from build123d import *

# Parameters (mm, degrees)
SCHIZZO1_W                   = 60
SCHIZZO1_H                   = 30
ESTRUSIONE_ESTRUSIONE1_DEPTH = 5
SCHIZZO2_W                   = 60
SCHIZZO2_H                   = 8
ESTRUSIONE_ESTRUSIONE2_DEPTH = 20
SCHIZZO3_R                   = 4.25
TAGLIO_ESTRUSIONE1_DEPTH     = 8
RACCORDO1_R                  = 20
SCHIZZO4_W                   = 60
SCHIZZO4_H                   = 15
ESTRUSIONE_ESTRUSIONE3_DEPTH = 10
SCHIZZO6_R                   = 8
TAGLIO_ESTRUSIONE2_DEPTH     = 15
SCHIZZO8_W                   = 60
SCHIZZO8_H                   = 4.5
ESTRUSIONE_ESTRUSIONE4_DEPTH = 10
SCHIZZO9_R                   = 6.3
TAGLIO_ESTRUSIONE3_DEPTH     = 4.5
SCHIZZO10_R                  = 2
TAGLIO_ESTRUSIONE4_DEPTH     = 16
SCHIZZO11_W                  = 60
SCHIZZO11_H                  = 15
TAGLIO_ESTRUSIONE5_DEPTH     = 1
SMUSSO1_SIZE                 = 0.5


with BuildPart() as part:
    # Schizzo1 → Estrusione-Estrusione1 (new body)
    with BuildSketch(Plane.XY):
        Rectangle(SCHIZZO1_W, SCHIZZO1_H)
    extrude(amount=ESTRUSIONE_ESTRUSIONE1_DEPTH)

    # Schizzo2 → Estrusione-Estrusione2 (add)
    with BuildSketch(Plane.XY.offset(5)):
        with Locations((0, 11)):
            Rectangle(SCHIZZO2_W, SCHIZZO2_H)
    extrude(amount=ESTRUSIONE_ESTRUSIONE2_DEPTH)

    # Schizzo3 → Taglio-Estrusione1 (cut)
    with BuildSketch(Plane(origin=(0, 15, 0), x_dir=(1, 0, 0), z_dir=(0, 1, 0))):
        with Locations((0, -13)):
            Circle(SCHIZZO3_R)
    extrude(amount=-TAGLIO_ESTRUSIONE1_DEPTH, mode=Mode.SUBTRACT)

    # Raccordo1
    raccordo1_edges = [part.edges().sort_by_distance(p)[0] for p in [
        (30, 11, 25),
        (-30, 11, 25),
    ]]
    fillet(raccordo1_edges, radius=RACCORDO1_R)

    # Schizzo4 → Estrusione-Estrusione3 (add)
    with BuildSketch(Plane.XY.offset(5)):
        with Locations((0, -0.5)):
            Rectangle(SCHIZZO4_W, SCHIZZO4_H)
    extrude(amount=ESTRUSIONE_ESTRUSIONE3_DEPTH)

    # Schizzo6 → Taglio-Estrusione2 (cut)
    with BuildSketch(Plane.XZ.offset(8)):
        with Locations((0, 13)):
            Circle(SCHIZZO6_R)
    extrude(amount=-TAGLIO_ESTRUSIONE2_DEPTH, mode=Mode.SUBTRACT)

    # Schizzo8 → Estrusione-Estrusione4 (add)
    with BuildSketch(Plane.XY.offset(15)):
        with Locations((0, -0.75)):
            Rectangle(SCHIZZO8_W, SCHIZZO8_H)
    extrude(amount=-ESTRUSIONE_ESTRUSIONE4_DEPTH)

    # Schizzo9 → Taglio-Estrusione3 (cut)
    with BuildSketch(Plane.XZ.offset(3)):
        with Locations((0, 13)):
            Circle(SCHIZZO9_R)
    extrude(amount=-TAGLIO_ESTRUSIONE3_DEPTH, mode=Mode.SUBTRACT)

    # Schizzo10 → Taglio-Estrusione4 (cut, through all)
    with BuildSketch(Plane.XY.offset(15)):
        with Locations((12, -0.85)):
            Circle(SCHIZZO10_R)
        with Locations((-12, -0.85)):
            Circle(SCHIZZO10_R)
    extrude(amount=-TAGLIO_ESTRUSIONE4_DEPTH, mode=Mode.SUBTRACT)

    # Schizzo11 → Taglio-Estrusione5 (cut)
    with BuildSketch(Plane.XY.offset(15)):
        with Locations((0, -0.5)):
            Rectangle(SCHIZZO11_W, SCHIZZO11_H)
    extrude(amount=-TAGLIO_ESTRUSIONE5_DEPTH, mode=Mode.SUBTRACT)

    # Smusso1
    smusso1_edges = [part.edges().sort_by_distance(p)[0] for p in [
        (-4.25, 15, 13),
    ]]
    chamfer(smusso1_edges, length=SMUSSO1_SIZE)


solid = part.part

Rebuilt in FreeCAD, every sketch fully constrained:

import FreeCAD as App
import Part
import Sketcher
from FreeCAD import Vector
Q = App.Units.Quantity


def edges_at(feature, points):
    """Names of the edges that pass closest to the given points."""
    edges = feature.Shape.Edges
    near = lambda p: min(range(len(edges)), key=lambda i: edges[i].distToShape(Part.Vertex(*p))[0])
    return sorted({f"Edge{near(p) + 1}" for p in points})


def add_polygon(sketch, points):
    """Adds a closed chain of lines whose ends are joined by coincident constraints."""
    first, n = sketch.GeometryCount, len(points)
    for a, b in zip(points, points[1:] + points[:1]):
        sketch.addGeometry(Part.LineSegment(App.Vector(*a, 0), App.Vector(*b, 0)), False)
    for i in range(n):
        sketch.addConstraint(Sketcher.Constraint("Coincident", first + i, 2, first + (i + 1) % n, 1))

doc = App.newDocument("Part")
body = doc.addObject("PartDesign::Body", "Body")

sketch1 = body.newObject("Sketcher::SketchObject", "Sketch")
sketch1.AttachmentSupport = (doc.getObject("XY_Plane"), [""])
sketch1.MapMode = "FlatFace"
add_polygon(sketch1, [(-30, 15), (-30, -15), (30, -15), (30, 15)])
sketch1.addConstraint(Sketcher.Constraint("Vertical", 0))
sketch1.addConstraint(Sketcher.Constraint("Horizontal", 1))
sketch1.addConstraint(Sketcher.Constraint("Vertical", 2))
sketch1.addConstraint(Sketcher.Constraint("Horizontal", 3))
sketch1.addConstraint(Sketcher.Constraint("Symmetric", 0, 2, 2, 2, -1, 1))
sketch1.addConstraint(Sketcher.Constraint("DistanceX", 1, 1, 1, 2, Q("60 mm")))
sketch1.addConstraint(Sketcher.Constraint("DistanceY", 0, 2, 0, 1, Q("30 mm")))
pad1 = body.newObject("PartDesign::Pad", "Pad")
pad1.Profile = sketch1
pad1.Length = 5

sketch2 = body.newObject("Sketcher::SketchObject", "Sketch001")
sketch2.AttachmentSupport = (doc.getObject("XY_Plane"), [""])
sketch2.MapMode = "FlatFace"
sketch2.AttachmentOffset = App.Placement(Vector(0, 0, 5), App.Rotation())
add_polygon(sketch2, [(-30, 15), (-30, 7), (30, 7), (30, 15)])
sketch2.addConstraint(Sketcher.Constraint("Vertical", 0))
sketch2.addConstraint(Sketcher.Constraint("Horizontal", 1))
sketch2.addConstraint(Sketcher.Constraint("Vertical", 2))
sketch2.addConstraint(Sketcher.Constraint("Horizontal", 3))
sketch2.addConstraint(Sketcher.Constraint("DistanceX", 1, 1, 1, 2, Q("60 mm")))
sketch2.addConstraint(Sketcher.Constraint("DistanceY", 0, 2, 0, 1, Q("8 mm")))
sketch2.addConstraint(Sketcher.Constraint("DistanceX", 0, 2, -1, 1, Q("30 mm")))
sketch2.addConstraint(Sketcher.Constraint("DistanceY", -1, 1, 0, 2, Q("7 mm")))
pad2 = body.newObject("PartDesign::Pad", "Pad001")
pad2.Profile = sketch2
pad2.Length = 20

sketch3 = body.newObject("Sketcher::SketchObject", "Sketch002")
sketch3.AttachmentSupport = (doc.getObject("XZ_Plane"), [""])
sketch3.MapMode = "FlatFace"
sketch3.AttachmentOffset = App.Placement(Vector(0, 0, -15), App.Rotation())
sketch3.addGeometry(Part.Circle(Vector(0, 13, 0), Vector(0, 0, 1), 4.25), False)
sketch3.addConstraint(Sketcher.Constraint("PointOnObject", 0, 3, -2))
sketch3.addConstraint(Sketcher.Constraint("Diameter", 0, Q("8.5 mm")))
sketch3.addConstraint(Sketcher.Constraint("DistanceY", -1, 1, 0, 3, Q("13 mm")))
pocket1 = body.newObject("PartDesign::Pocket", "Pocket")
pocket1.Profile = sketch3
pocket1.Length = 8
pocket1.Reversed = True
doc.recompute()

fillet = body.newObject("PartDesign::Fillet", "Fillet")
fillet.Base = (pocket1, edges_at(pocket1, [(30, 11, 25), (-30, 11, 25)]))
fillet.Radius = 20

sketch4 = body.newObject("Sketcher::SketchObject", "Sketch003")
sketch4.AttachmentSupport = (doc.getObject("XY_Plane"), [""])
sketch4.MapMode = "FlatFace"
sketch4.AttachmentOffset = App.Placement(Vector(0, 0, 5), App.Rotation())
add_polygon(sketch4, [(-30, 7), (-30, -8), (30, -8), (30, 7)])
sketch4.addConstraint(Sketcher.Constraint("Vertical", 0))
sketch4.addConstraint(Sketcher.Constraint("Horizontal", 1))
sketch4.addConstraint(Sketcher.Constraint("Vertical", 2))
sketch4.addConstraint(Sketcher.Constraint("Horizontal", 3))
sketch4.addConstraint(Sketcher.Constraint("DistanceX", 1, 1, 1, 2, Q("60 mm")))
sketch4.addConstraint(Sketcher.Constraint("DistanceY", 0, 2, 0, 1, Q("15 mm")))
sketch4.addConstraint(Sketcher.Constraint("DistanceX", 0, 2, -1, 1, Q("30 mm")))
sketch4.addConstraint(Sketcher.Constraint("DistanceY", 0, 2, -1, 1, Q("8 mm")))
pad3 = body.newObject("PartDesign::Pad", "Pad002")
pad3.Profile = sketch4
pad3.Length = 10

sketch5 = body.newObject("Sketcher::SketchObject", "Sketch004")
sketch5.AttachmentSupport = (doc.getObject("XZ_Plane"), [""])
sketch5.MapMode = "FlatFace"
sketch5.AttachmentOffset = App.Placement(Vector(0, 0, 8), App.Rotation())
sketch5.addGeometry(Part.Circle(Vector(0, 13, 0), Vector(0, 0, 1), 8), False)
sketch5.addConstraint(Sketcher.Constraint("PointOnObject", 0, 3, -2))
sketch5.addConstraint(Sketcher.Constraint("Diameter", 0, Q("16 mm")))
sketch5.addConstraint(Sketcher.Constraint("DistanceY", -1, 1, 0, 3, Q("13 mm")))
pocket2 = body.newObject("PartDesign::Pocket", "Pocket001")
pocket2.Profile = sketch5
pocket2.Length = 15

sketch6 = body.newObject("Sketcher::SketchObject", "Sketch005")
sketch6.AttachmentSupport = (doc.getObject("XY_Plane"), [""])
sketch6.MapMode = "FlatFace"
sketch6.AttachmentOffset = App.Placement(Vector(0, 0, 15), App.Rotation())
add_polygon(sketch6, [(-30, 1.5), (-30, -3), (30, -3), (30, 1.5)])
sketch6.addConstraint(Sketcher.Constraint("Vertical", 0))
sketch6.addConstraint(Sketcher.Constraint("Horizontal", 1))
sketch6.addConstraint(Sketcher.Constraint("Vertical", 2))
sketch6.addConstraint(Sketcher.Constraint("Horizontal", 3))
sketch6.addConstraint(Sketcher.Constraint("DistanceX", 1, 1, 1, 2, Q("60 mm")))
sketch6.addConstraint(Sketcher.Constraint("DistanceY", 0, 2, 0, 1, Q("4.5 mm")))
sketch6.addConstraint(Sketcher.Constraint("DistanceX", 0, 2, -1, 1, Q("30 mm")))
sketch6.addConstraint(Sketcher.Constraint("DistanceY", 0, 2, -1, 1, Q("3 mm")))
pad4 = body.newObject("PartDesign::Pad", "Pad003")
pad4.Profile = sketch6
pad4.Length = 10
pad4.Reversed = True

sketch7 = body.newObject("Sketcher::SketchObject", "Sketch006")
sketch7.AttachmentSupport = (doc.getObject("XZ_Plane"), [""])
sketch7.MapMode = "FlatFace"
sketch7.AttachmentOffset = App.Placement(Vector(0, 0, 3), App.Rotation())
sketch7.addGeometry(Part.Circle(Vector(0, 13, 0), Vector(0, 0, 1), 6.3), False)
sketch7.addConstraint(Sketcher.Constraint("PointOnObject", 0, 3, -2))
sketch7.addConstraint(Sketcher.Constraint("Diameter", 0, Q("12.6 mm")))
sketch7.addConstraint(Sketcher.Constraint("DistanceY", -1, 1, 0, 3, Q("13 mm")))
pocket3 = body.newObject("PartDesign::Pocket", "Pocket002")
pocket3.Profile = sketch7
pocket3.Length = 4.5

sketch8 = body.newObject("Sketcher::SketchObject", "Sketch007")
sketch8.AttachmentSupport = (doc.getObject("XY_Plane"), [""])
sketch8.MapMode = "FlatFace"
sketch8.AttachmentOffset = App.Placement(Vector(0, 0, 15), App.Rotation())
sketch8.addGeometry(Part.Circle(Vector(12, -0.85, 0), Vector(0, 0, 1), 2), False)
sketch8.addGeometry(Part.Circle(Vector(-12, -0.85, 0), Vector(0, 0, 1), 2), False)
sketch8.addConstraint(Sketcher.Constraint("Equal", 0, 1))
sketch8.addConstraint(Sketcher.Constraint("Symmetric", 0, 3, 1, 3, -2))
sketch8.addConstraint(Sketcher.Constraint("Diameter", 0, Q("4 mm")))
sketch8.addConstraint(Sketcher.Constraint("DistanceX", -1, 1, 0, 3, Q("12 mm")))
sketch8.addConstraint(Sketcher.Constraint("DistanceY", 0, 3, -1, 1, Q("0.85 mm")))
pocket4 = body.newObject("PartDesign::Pocket", "Pocket003")
pocket4.Profile = sketch8
pocket4.Type = "ThroughAll"

sketch9 = body.newObject("Sketcher::SketchObject", "Sketch008")
sketch9.AttachmentSupport = (doc.getObject("XY_Plane"), [""])
sketch9.MapMode = "FlatFace"
sketch9.AttachmentOffset = App.Placement(Vector(0, 0, 15), App.Rotation())
add_polygon(sketch9, [(-30, 7), (-30, -8), (30, -8), (30, 7)])
sketch9.addConstraint(Sketcher.Constraint("Vertical", 0))
sketch9.addConstraint(Sketcher.Constraint("Horizontal", 1))
sketch9.addConstraint(Sketcher.Constraint("Vertical", 2))
sketch9.addConstraint(Sketcher.Constraint("Horizontal", 3))
sketch9.addConstraint(Sketcher.Constraint("DistanceX", 1, 1, 1, 2, Q("60 mm")))
sketch9.addConstraint(Sketcher.Constraint("DistanceY", 0, 2, 0, 1, Q("15 mm")))
sketch9.addConstraint(Sketcher.Constraint("DistanceX", 0, 2, -1, 1, Q("30 mm")))
sketch9.addConstraint(Sketcher.Constraint("DistanceY", 0, 2, -1, 1, Q("8 mm")))
pocket5 = body.newObject("PartDesign::Pocket", "Pocket004")
pocket5.Profile = sketch9
pocket5.Length = 1
doc.recompute()

chamfer = body.newObject("PartDesign::Chamfer", "Chamfer")
chamfer.Base = (pocket5, edges_at(pocket5, [(-4.25, 15, 13)]))
chamfer.Size = 0.5

doc.recompute()
